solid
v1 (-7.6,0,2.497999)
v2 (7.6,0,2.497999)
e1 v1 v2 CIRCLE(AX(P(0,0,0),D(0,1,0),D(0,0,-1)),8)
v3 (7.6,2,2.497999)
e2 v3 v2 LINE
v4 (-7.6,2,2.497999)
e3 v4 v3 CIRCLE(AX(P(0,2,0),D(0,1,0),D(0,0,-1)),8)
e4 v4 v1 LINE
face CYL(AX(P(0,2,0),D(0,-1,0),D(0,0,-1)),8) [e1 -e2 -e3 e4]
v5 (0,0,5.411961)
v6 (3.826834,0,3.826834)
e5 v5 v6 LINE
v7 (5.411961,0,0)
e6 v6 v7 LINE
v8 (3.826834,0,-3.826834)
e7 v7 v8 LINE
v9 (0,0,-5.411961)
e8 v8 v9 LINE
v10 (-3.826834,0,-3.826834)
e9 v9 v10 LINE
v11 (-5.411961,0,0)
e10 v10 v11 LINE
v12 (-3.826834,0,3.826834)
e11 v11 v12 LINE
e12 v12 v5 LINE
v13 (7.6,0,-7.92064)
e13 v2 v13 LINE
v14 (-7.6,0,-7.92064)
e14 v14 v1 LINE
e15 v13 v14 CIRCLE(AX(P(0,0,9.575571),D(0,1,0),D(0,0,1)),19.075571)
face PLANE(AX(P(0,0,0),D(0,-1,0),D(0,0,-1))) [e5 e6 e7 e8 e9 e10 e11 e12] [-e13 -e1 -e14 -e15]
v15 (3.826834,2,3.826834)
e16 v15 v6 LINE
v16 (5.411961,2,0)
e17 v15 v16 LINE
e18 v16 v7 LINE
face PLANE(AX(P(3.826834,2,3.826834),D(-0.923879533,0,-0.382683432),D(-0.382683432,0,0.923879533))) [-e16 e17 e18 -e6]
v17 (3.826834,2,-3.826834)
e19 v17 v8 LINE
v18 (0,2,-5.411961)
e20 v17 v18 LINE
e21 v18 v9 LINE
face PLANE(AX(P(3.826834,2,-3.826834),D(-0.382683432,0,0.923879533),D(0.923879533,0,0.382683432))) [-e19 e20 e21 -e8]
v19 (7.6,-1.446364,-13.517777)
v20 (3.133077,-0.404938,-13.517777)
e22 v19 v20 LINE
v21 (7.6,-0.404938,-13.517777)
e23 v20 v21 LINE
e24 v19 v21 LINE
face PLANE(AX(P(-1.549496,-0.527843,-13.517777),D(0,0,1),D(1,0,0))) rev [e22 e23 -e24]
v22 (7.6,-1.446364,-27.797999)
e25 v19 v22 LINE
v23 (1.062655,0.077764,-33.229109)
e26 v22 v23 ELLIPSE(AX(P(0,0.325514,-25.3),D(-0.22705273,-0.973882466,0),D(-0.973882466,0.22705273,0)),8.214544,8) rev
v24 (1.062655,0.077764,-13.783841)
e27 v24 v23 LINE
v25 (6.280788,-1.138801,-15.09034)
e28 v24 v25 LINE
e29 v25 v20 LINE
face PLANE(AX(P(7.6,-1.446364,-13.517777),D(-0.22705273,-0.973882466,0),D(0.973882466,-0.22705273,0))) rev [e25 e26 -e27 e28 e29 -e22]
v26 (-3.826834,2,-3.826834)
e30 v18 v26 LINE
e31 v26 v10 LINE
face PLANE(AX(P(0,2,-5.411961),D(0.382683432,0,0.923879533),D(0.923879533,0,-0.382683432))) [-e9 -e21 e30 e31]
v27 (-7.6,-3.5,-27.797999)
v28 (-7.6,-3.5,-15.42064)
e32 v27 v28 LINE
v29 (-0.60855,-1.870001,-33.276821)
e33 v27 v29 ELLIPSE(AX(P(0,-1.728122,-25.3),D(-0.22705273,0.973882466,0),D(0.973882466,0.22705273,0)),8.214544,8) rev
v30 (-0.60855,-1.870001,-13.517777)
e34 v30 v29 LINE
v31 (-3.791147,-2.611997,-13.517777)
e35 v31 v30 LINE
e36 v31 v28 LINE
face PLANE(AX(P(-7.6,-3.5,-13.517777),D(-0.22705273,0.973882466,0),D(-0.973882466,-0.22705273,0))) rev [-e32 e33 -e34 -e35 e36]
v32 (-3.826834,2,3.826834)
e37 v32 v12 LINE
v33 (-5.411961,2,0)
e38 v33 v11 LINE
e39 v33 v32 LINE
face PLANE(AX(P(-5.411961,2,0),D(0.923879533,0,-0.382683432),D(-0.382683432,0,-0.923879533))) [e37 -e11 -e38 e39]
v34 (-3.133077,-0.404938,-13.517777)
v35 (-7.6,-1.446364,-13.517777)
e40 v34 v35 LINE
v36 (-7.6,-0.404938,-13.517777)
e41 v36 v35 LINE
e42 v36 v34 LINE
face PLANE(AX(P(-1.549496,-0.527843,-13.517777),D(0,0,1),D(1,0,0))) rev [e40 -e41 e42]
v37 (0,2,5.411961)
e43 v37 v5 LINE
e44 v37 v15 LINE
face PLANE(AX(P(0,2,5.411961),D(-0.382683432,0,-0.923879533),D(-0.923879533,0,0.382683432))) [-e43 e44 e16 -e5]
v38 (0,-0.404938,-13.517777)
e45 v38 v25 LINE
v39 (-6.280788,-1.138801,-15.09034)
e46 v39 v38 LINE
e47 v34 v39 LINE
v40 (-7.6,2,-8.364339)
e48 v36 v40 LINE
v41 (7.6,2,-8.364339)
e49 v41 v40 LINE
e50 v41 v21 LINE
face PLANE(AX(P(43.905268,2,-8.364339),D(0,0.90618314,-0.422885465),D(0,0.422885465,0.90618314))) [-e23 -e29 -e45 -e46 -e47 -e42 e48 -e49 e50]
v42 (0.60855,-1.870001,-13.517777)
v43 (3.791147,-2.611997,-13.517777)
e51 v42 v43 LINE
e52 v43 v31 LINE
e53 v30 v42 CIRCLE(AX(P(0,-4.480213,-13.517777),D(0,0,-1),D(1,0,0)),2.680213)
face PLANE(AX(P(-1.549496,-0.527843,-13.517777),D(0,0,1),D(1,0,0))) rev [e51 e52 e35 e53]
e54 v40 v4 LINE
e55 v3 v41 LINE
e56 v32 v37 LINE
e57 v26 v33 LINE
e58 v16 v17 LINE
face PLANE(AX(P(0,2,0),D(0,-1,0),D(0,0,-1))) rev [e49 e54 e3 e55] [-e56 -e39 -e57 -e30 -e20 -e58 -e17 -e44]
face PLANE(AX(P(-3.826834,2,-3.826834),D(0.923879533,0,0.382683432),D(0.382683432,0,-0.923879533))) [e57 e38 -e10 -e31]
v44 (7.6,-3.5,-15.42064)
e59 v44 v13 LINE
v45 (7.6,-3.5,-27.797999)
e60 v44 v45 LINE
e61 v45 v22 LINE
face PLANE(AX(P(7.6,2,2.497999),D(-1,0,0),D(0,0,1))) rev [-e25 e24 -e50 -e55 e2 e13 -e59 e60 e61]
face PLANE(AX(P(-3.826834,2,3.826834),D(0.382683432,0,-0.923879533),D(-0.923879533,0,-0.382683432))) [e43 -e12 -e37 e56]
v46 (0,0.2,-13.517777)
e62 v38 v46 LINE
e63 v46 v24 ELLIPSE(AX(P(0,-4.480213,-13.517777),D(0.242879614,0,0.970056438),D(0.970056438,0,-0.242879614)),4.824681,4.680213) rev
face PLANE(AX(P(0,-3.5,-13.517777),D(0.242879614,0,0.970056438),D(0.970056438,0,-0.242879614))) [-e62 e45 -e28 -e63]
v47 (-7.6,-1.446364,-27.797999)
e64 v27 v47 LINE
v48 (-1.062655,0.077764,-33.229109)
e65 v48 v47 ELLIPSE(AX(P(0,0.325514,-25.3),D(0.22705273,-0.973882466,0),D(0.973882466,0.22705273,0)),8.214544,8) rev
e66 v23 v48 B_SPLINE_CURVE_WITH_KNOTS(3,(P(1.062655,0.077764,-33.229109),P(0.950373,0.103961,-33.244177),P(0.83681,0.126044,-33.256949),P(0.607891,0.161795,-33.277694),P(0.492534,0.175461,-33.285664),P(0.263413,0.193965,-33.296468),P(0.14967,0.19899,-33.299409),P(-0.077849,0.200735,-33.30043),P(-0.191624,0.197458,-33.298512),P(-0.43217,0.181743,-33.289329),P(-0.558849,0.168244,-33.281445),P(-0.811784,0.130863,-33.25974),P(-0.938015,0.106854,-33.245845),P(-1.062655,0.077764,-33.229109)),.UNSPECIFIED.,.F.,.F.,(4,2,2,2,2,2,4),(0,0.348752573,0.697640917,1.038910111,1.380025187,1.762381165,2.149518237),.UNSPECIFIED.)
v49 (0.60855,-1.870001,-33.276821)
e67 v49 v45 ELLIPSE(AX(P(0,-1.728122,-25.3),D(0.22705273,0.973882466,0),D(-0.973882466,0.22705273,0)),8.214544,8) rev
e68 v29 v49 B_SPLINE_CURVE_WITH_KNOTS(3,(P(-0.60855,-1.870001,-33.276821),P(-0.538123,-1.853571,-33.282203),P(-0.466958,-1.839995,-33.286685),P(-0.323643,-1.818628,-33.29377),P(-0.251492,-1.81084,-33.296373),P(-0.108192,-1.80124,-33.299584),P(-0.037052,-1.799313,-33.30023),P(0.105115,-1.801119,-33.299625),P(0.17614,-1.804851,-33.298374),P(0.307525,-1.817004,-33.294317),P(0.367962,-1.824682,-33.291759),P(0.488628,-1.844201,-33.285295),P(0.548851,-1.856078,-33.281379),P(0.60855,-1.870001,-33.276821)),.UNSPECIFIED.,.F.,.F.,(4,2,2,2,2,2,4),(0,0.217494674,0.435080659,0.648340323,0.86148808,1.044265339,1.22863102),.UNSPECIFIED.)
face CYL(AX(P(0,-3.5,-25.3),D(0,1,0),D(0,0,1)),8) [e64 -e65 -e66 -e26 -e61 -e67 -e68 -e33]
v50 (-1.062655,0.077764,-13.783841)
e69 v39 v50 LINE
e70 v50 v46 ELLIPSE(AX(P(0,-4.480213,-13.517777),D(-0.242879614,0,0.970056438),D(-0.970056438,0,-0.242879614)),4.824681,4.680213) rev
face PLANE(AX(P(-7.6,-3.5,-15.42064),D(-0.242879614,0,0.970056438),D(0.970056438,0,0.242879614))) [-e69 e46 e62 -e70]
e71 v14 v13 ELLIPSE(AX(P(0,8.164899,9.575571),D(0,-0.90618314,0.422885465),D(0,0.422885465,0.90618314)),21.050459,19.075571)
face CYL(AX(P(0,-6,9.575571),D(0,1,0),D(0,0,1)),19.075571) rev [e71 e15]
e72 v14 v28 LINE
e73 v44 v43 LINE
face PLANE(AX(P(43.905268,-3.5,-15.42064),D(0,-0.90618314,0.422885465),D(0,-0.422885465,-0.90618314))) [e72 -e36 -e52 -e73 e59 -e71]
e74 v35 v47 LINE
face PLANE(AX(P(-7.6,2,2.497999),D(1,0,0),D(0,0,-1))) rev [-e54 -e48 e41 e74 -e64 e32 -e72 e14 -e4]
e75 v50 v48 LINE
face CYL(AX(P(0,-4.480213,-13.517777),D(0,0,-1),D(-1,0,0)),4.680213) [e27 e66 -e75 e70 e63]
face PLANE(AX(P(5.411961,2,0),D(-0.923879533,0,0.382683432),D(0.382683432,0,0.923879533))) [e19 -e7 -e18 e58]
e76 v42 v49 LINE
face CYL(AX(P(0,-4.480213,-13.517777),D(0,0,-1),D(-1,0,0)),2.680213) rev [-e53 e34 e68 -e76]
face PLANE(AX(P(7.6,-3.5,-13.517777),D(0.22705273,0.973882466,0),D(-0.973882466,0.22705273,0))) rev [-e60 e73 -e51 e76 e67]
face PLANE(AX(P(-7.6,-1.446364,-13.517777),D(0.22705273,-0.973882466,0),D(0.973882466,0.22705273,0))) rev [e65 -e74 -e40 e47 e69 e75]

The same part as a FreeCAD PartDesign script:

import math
import FreeCAD as App
import Part
import Sketcher
Q = App.Units.Quantity


def add_polygon(sketch, points):
    """Adds a closed chain of lines whose ends are joined by coincident constraints."""
    first, n = sketch.GeometryCount, len(points)
    for a, b in zip(points, points[1:] + points[:1]):
        sketch.addGeometry(Part.LineSegment(App.Vector(*a, 0), App.Vector(*b, 0)), False)
    for i in range(n):
        sketch.addConstraint(Sketcher.Constraint("Coincident", first + i, 2, first + (i + 1) % n, 1))

doc = App.newDocument("Part")
params = doc.addObject("Spreadsheet::Sheet", "Params")
for row, (alias, value) in enumerate([
    ("sketch1_radius", "8 mm"),
    ("pad1_length", "2 mm"),
    ("sketch2_height", "7.5 mm"),
    ("pad2_length", "8 mm"),
    ("sketch3_width", "6 mm"),
    ("sketch3_width2", "2.5 mm"),
    ("sketch3_height", "7.5 mm"),
    ("sketch4_radius", "8 mm"),
    ("pad3_length", "5.5 mm"),
    ("sketch5_width", "26.07 mm"),
    ("sketch5_height", "16.37 mm"),
    ("pocket2_length", "19.782223 mm"),
], start=1):
    params.set(f"A{row}", alias)
    params.set(f"B{row}", "=" + value)
    params.setAlias(f"B{row}", alias)

body = doc.addObject("PartDesign::Body", "Body")

sketch1 = body.newObject("Sketcher::SketchObject", "Sketch")
sketch1.AttachmentSupport = (doc.getObject("XZ_Plane"), [""])
sketch1.MapMode = "FlatFace"
sketch1.addGeometry(Part.LineSegment(App.Vector(-7.6, -7.9, 0), App.Vector(-7.6, 2.5, 0)), False)
sketch1.addGeometry(Part.ArcOfCircle(Part.Circle(App.Vector(0, 0, 0), App.Vector(0, 0, 1), 8), math.radians(18), math.radians(162)), False)
sketch1.addGeometry(Part.LineSegment(App.Vector(7.6, 2.5, 0), App.Vector(7.6, -7.9, 0)), False)
sketch1.addGeometry(Part.ArcOfCircle(Part.Circle(App.Vector(0, 9.6, 0), App.Vector(0, 0, 1), 19.1), math.radians(-113), math.radians(-67)), False)
add_polygon(sketch1, [(0, -5.4), (3.8, -3.8), (5.4, 0), (3.8, 3.8), (0, 5.4), (-3.8, 3.8), (-5.4, 0), (-3.8, -3.8)])
sketch1.addConstraint([
    Sketcher.Constraint("Coincident", 0, 2, 1, 2),
    Sketcher.Constraint("Coincident", 1, 1, 2, 1),
    Sketcher.Constraint("Coincident", 2, 2, 3, 2),
    Sketcher.Constraint("Coincident", 3, 1, 0, 1),
    Sketcher.Constraint("Vertical", 0),
    Sketcher.Constraint("Vertical", 2),
    Sketcher.Constraint("Coincident", 1, 3, -1, 1),
    Sketcher.Constraint("Symmetric", 4, 2, 8, 2, -1, 1),
    Sketcher.Constraint("Symmetric", 5, 2, 9, 2, -1, 1),
    Sketcher.Constraint("Symmetric", 6, 2, 10, 2, -1, 1),
    Sketcher.Constraint("Symmetric", 7, 2, 11, 2, -1, 1),
    Sketcher.Constraint("Symmetric", 2, 2, 3, 1, -2),
    Sketcher.Constraint("Symmetric", 6, 2, 8, 2, -2),
    Sketcher.Constraint("PointOnObject", 5, 2, -1),
    Sketcher.Constraint("PointOnObject", 7, 2, -2),
    Sketcher.Constraint("Perpendicular", 4, 6),
    Sketcher.Constraint("Equal", 4, 5),
    Sketcher.Constraint("Radius", 1, 8.0),
    Sketcher.Constraint("Angle", 4, Q("22.5 deg")),
    Sketcher.Constraint("DistanceX", 0, 2, -1, 1, 7.6),
    Sketcher.Constraint("Radius", 3, 19.075571),
    Sketcher.Constraint("DistanceY", 0, 1, 0, 2, 10.418639),
    Sketcher.Constraint("DistanceX", -1, 1, 5, 2, 5.411961),
])
sketch1.setExpression("Constraints[25]", "Params.sketch1_radius")
pad1 = body.newObject("PartDesign::Pad", "Pad")
pad1.Profile = sketch1
pad1.setExpression("Length", "Params.pad1_length")
pad1.Reversed = True

sketch2 = body.newObject("Sketcher::SketchObject", "Sketch001")
sketch2.AttachmentSupport = (doc.getObject("XZ_Plane"), [""])
sketch2.MapMode = "FlatFace"
sketch2.AttachmentOffset = App.Placement(App.Vector(0, 0, 6), App.Rotation())
sketch2.addGeometry([
    Part.LineSegment(App.Vector(-8, -15, 0), App.Vector(-8, -8, 0)),
    Part.ArcOfCircle(Part.Circle(App.Vector(0, 10, 0), App.Vector(0, 0, 1), 19), math.radians(-113), math.radians(-67)),
    Part.LineSegment(App.Vector(8, -8, 0), App.Vector(8, -15, 0)),
    Part.LineSegment(App.Vector(8, -15, 0), App.Vector(0, -14, 0)),
    Part.LineSegment(App.Vector(0, -14, 0), App.Vector(-8, -15, 0)),
], False)
sketch2.addConstraint([
    Sketcher.Constraint("Coincident", 0, 2, 1, 1),
    Sketcher.Constraint("Coincident", 1, 2, 2, 1),
    Sketcher.Constraint("Coincident", 2, 2, 3, 1),
    Sketcher.Constraint("Coincident", 3, 2, 4, 1),
    Sketcher.Constraint("Coincident", 4, 2, 0, 1),
    Sketcher.Constraint("Vertical", 0),
    Sketcher.Constraint("Vertical", 2),
    Sketcher.Constraint("Symmetric", 0, 2, 1, 2, -2),
    Sketcher.Constraint("PointOnObject", 3, 2, -2),
    Sketcher.Constraint("Horizontal", 2, 2, 4, 2),
    Sketcher.Constraint("DistanceY", 0, 1, 0, 2, 7.5),
    Sketcher.Constraint("DistanceX", 0, 2, -1, 1, 7.6),
    Sketcher.Constraint("Radius", 1, 19.075571),
    Sketcher.Constraint("DistanceY", -1, 1, 1, 3, 9.575571),
    Sketcher.Constraint("Distance", 3, 7.834596),
])
sketch2.setExpression("Constraints[10]", "Params.sketch2_height")
pad2 = body.newObject("PartDesign::Pad", "Pad001")
pad2.Profile = sketch2
pad2.setExpression("Length", "Params.pad2_length")
pad2.Reversed = True

sketch3 = body.newObject("Sketcher::SketchObject", "Sketch002")
sketch3.AttachmentSupport = (doc.getObject("YZ_Plane"), [""])
sketch3.MapMode = "FlatFace"
sketch3.AttachmentOffset = App.Placement(App.Vector(0, 0, 7.6), App.Rotation())
add_polygon(sketch3, [(2, -15.4), (2, -8.4), (-1.3, -15.4)])
add_polygon(sketch3, [(-6, -15.4), (-3.5, -15.4), (0, -7.9), (-6, -7.9)])
sketch3.addConstraint([
    Sketcher.Constraint("Vertical", 0),
    Sketcher.Constraint("Horizontal", 2),
    Sketcher.Constraint("Horizontal", 3),
    Sketcher.Constraint("Horizontal", 5),
    Sketcher.Constraint("Vertical", 6),
    Sketcher.Constraint("PointOnObject", 4, 2, -2),
    Sketcher.Constraint("Parallel", 1, 4),
    Sketcher.Constraint("Horizontal", 2, 2, 3, 2),
    Sketcher.Constraint("DistanceX", 5, 2, 5, 1, 6.0),
    Sketcher.Constraint("DistanceX", 3, 1, 3, 2, 2.5),
    Sketcher.Constraint("DistanceY", 6, 2, 6, 1, 7.5),
    Sketcher.Constraint("DistanceX", -1, 1, 0, 2, 2.0),
    Sketcher.Constraint("DistanceY", 0, 1, 0, 2, 7.056301),
    Sketcher.Constraint("DistanceY", 0, 2, -1, 1, 8.364339),
])
sketch3.setExpression("Constraints[15]", "Params.sketch3_width")
sketch3.setExpression("Constraints[16]", "Params.sketch3_width2")
sketch3.setExpression("Constraints[17]", "Params.sketch3_height")
pocket1 = body.newObject("PartDesign::Pocket", "Pocket")
pocket1.Profile = sketch3
pocket1.Type = "ThroughAll"
pocket1.Midplane = True

sketch4 = body.newObject("Sketcher::SketchObject", "Sketch003")
sketch4.AttachmentSupport = (doc.getObject("XZ_Plane"), [""])
sketch4.MapMode = "FlatFace"
sketch4.AttachmentOffset = App.Placement(App.Vector(0, 0, -2), App.Rotation())
sketch4.addGeometry([
    Part.LineSegment(App.Vector(-8, -28, 0), App.Vector(-8, -15, 0)),
    Part.LineSegment(App.Vector(-8, -15, 0), App.Vector(0, -14, 0)),
    Part.LineSegment(App.Vector(0, -14, 0), App.Vector(8, -15, 0)),
    Part.LineSegment(App.Vector(8, -15, 0), App.Vector(8, -28, 0)),
    Part.ArcOfCircle(Part.Circle(App.Vector(0, -25, 0), App.Vector(0, 0, 1), 8), math.radians(-162), math.radians(-18)),
], False)
sketch4.addConstraint([
    Sketcher.Constraint("Coincident", 0, 2, 1, 1),
    Sketcher.Constraint("Coincident", 1, 2, 2, 1),
    Sketcher.Constraint("Coincident", 2, 2, 3, 1),
    Sketcher.Constraint("Coincident", 3, 2, 4, 2),
    Sketcher.Constraint("Coincident", 4, 1, 0, 1),
    Sketcher.Constraint("Vertical", 0),
    Sketcher.Constraint("Vertical", 3),
    Sketcher.Constraint("Symmetric", 0, 2, 2, 2, -2),
    Sketcher.Constraint("PointOnObject", 4, 3, -2),
    Sketcher.Constraint("PointOnObject", 1, 2, -2),
    Sketcher.Constraint("Radius", 4, 8.0),
    Sketcher.Constraint("DistanceY", 4, 3, -1, 1, 25.3),
    Sketcher.Constraint("DistanceX", 0, 2, -1, 1, 7.6),
    Sketcher.Constraint("DistanceY", 0, 1, 0, 2, 12.377359),
    Sketcher.Constraint("Distance", 1, 7.834596),
])
sketch4.setExpression("Constraints[10]", "Params.sketch4_radius")
pad3 = body.newObject("PartDesign::Pad", "Pad002")
pad3.Profile = sketch4
pad3.setExpression("Length", "Params.pad3_length")

sketch5 = body.newObject("Sketcher::SketchObject", "Sketch004")
sketch5.AttachmentSupport = (doc.getObject("XY_Plane"), [""])
sketch5.MapMode = "FlatFace"
sketch5.AttachmentOffset = App.Placement(App.Vector(0, 0, -33.3), App.Rotation())
add_polygon(sketch5, [(-13, 7.4), (-13, -8.9), (13, -8.9), (13, 7.4)])
sketch5.addGeometry(Part.LineSegment(App.Vector(1.1, 0.1, 0), App.Vector(7.6, -1.4, 0)), False)
sketch5.addGeometry(Part.LineSegment(App.Vector(7.6, -1.4, 0), App.Vector(7.6, -3.5, 0)), False)
sketch5.addGeometry(Part.LineSegment(App.Vector(7.6, -3.5, 0), App.Vector(0.6, -1.9, 0)), False)
sketch5.addGeometry(Part.ArcOfCircle(Part.Circle(App.Vector(0, -4.5, 0), App.Vector(0, 0, 1), 2.7), math.radians(77), math.radians(103)), False)
sketch5.addGeometry(Part.LineSegment(App.Vector(-0.6, -1.9, 0), App.Vector(-7.6, -3.5, 0)), False)
sketch5.addGeometry(Part.LineSegment(App.Vector(-7.6, -3.5, 0), App.Vector(-7.6, -1.4, 0)), False)
sketch5.addGeometry(Part.LineSegment(App.Vector(-7.6, -1.4, 0), App.Vector(-1.1, 0.1, 0)), False)
sketch5.addGeometry(Part.ArcOfCircle(Part.Circle(App.Vector(0, -4.5, 0), App.Vector(0, 0, 1), 4.7), math.radians(77), math.radians(103)), False)
sketch5.addConstraint([
    Sketcher.Constraint("Coincident", 4, 2, 5, 1),
    Sketcher.Constraint("Coincident", 5, 2, 6, 1),
    Sketcher.Constraint("Tangent", 6, 2, 7, 1),
    Sketcher.Constraint("Tangent", 7, 2, 8, 1),
    Sketcher.Constraint("Coincident", 8, 2, 9, 1),
    Sketcher.Constraint("Coincident", 9, 2, 10, 1),
    Sketcher.Constraint("Tangent", 10, 2, 11, 2),
    Sketcher.Constraint("Tangent", 11, 1, 4, 1),
    Sketcher.Constraint("Vertical", 0),
    Sketcher.Constraint("Horizontal", 1),
    Sketcher.Constraint("Vertical", 2),
    Sketcher.Constraint("Horizontal", 3),
    Sketcher.Constraint("Vertical", 5),
    Sketcher.Constraint("Vertical", 9),
    Sketcher.Constraint("Coincident", 11, 3, 7, 3),
    Sketcher.Constraint("Symmetric", 6, 2, 7, 2, -2),
    Sketcher.Constraint("Symmetric", 4, 2, 9, 2, -2),
    Sketcher.Constraint("Parallel", 4, 6),
    Sketcher.Constraint("DistanceX", 1, 1, 1, 2, 26.07),
    Sketcher.Constraint("DistanceY", 0, 2, 0, 1, 16.37),
    Sketcher.Constraint("DistanceX", -1, 1, 4, 2, 7.6),
    Sketcher.Constraint("DistanceY", 5, 2, -1, 1, 3.5),
    Sketcher.Constraint("DistanceY", 6, 2, -1, 1, 1.870001),
    Sketcher.Constraint("DistanceX", 0, 2, -1, 1, 13.035),
    Sketcher.Constraint("DistanceY", 0, 2, -1, 1, 8.935),
    Sketcher.Constraint("Radius", 7, 2.680213),
    Sketcher.Constraint("Radius", 11, 4.680213),
])
sketch5.setExpression("Constraints[22]", "Params.sketch5_width")
sketch5.setExpression("Constraints[23]", "Params.sketch5_height")
pocket2 = body.newObject("PartDesign::Pocket", "Pocket001")
pocket2.Profile = sketch5
pocket2.setExpression("Length", "Params.pocket2_length")
pocket2.Reversed = True

doc.recompute()
